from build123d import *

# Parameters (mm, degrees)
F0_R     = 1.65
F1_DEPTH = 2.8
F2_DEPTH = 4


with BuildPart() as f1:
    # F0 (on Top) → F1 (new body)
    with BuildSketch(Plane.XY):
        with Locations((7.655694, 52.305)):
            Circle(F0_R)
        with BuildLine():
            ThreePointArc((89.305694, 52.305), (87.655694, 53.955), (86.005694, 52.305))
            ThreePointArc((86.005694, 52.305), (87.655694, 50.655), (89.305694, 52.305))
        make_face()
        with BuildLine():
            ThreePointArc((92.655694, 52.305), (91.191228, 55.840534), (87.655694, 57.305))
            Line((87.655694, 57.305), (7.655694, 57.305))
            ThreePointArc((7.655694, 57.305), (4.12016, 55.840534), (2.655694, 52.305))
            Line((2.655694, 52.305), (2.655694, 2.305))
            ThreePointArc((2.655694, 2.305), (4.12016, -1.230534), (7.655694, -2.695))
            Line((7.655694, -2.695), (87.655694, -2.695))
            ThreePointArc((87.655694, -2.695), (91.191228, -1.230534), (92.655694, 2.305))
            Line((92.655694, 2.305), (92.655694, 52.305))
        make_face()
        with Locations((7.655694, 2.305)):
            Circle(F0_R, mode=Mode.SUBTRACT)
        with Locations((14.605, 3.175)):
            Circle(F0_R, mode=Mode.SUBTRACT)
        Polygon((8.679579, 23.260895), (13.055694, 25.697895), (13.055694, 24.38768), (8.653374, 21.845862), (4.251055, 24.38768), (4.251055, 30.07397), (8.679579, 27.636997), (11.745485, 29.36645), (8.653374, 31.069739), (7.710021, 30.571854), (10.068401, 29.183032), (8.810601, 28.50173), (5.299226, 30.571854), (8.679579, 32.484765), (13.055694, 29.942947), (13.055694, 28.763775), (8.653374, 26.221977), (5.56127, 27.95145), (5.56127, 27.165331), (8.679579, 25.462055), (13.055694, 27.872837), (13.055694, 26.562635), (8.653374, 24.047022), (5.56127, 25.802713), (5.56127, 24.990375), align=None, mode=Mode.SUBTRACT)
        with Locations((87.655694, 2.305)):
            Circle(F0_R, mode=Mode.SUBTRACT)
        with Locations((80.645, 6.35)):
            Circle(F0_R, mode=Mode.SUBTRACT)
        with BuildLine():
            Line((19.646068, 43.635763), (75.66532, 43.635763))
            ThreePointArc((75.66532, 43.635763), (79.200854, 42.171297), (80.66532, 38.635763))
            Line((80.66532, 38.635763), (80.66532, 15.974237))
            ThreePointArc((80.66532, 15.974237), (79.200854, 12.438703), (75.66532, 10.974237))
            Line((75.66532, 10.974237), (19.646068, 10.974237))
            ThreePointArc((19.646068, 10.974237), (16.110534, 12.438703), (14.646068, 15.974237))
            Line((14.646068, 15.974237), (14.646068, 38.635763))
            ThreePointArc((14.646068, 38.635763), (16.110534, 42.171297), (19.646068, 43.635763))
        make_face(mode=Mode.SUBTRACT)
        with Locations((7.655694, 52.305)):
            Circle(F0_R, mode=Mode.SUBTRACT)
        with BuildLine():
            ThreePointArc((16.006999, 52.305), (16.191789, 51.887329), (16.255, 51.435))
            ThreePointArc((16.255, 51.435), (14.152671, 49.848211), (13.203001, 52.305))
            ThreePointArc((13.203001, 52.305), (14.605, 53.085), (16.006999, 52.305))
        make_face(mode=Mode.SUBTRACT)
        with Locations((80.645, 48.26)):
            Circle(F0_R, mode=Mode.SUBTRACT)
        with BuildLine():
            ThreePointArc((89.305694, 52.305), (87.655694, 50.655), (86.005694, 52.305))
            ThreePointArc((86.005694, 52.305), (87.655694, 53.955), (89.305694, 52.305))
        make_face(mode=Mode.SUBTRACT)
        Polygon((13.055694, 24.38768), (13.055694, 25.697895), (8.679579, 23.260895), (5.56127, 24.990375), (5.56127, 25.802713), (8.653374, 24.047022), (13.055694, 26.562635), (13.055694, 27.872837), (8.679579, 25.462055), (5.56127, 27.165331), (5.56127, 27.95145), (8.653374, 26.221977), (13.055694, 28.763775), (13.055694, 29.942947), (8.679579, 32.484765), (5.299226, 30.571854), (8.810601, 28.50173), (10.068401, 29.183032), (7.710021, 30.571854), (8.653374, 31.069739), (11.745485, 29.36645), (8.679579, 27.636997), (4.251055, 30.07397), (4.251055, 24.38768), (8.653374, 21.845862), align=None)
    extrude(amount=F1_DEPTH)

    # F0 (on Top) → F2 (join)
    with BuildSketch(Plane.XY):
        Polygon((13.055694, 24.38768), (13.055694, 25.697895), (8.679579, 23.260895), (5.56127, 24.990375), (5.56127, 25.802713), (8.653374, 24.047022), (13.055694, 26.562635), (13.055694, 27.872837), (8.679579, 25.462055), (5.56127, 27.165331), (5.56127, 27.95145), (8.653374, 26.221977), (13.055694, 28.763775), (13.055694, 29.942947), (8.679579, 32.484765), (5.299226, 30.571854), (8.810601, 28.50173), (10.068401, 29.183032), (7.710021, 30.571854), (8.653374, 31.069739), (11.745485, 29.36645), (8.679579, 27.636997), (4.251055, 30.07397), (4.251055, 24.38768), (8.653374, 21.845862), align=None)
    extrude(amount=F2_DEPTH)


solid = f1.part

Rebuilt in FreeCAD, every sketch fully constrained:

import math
import FreeCAD as App
import Part
import Sketcher
Q = App.Units.Quantity


def add_polygon(sketch, points):
    """Adds a closed chain of lines whose ends are joined by coincident constraints."""
    first, n = sketch.GeometryCount, len(points)
    for a, b in zip(points, points[1:] + points[:1]):
        sketch.addGeometry(Part.LineSegment(App.Vector(*a, 0), App.Vector(*b, 0)), False)
    for i in range(n):
        sketch.addConstraint(Sketcher.Constraint("Coincident", first + i, 2, first + (i + 1) % n, 1))

doc = App.newDocument("Part")
body = doc.addObject("PartDesign::Body", "Body")

# Sketch on XY plane
sketch1 = body.newObject("Sketcher::SketchObject", "Sketch")
sketch1.AttachmentSupport = (doc.getObject("XY_Plane"), [""])
sketch1.MapMode = "FlatFace"
sketch1.addGeometry(Part.ArcOfCircle(Part.Circle(App.Vector(87.7, 52.3, 0), App.Vector(0, 0, 1), 5), math.radians(0), math.radians(90)), False)
sketch1.addGeometry(Part.LineSegment(App.Vector(87.7, 57.3, 0), App.Vector(7.7, 57.3, 0)), False)
sketch1.addGeometry(Part.ArcOfCircle(Part.Circle(App.Vector(7.7, 52.3, 0), App.Vector(0, 0, 1), 5), math.radians(90), math.radians(180)), False)
sketch1.addGeometry(Part.LineSegment(App.Vector(2.7, 52.3, 0), App.Vector(2.7, 2.3, 0)), False)
sketch1.addGeometry(Part.ArcOfCircle(Part.Circle(App.Vector(7.7, 2.3, 0), App.Vector(0, 0, 1), 5), math.radians(180), math.radians(270)), False)
sketch1.addGeometry(Part.LineSegment(App.Vector(7.7, -2.7, 0), App.Vector(87.7, -2.7, 0)), False)
sketch1.addGeometry(Part.ArcOfCircle(Part.Circle(App.Vector(87.7, 2.3, 0), App.Vector(0, 0, 1), 5), math.radians(-90), math.radians(0)), False)
sketch1.addGeometry(Part.LineSegment(App.Vector(92.7, 2.3, 0), App.Vector(92.7, 52.3, 0)), False)
sketch1.addGeometry(Part.Circle(App.Vector(7.7, 2.3, 0), App.Vector(0, 0, 1), 1.6), False)
sketch1.addGeometry(Part.Circle(App.Vector(14.6, 3.2, 0), App.Vector(0, 0, 1), 1.6), False)
sketch1.addGeometry(Part.Circle(App.Vector(87.7, 2.3, 0), App.Vector(0, 0, 1), 1.6), False)
sketch1.addGeometry(Part.Circle(App.Vector(80.6, 6.3, 0), App.Vector(0, 0, 1), 1.6), False)
sketch1.addGeometry(Part.Circle(App.Vector(7.7, 52.3, 0), App.Vector(0, 0, 1), 1.6), False)
sketch1.addGeometry(Part.ArcOfCircle(Part.Circle(App.Vector(14.6, 51.4, 0), App.Vector(0, 0, 1), 1.7), math.radians(32), math.radians(148)), False)
sketch1.addGeometry(Part.ArcOfCircle(Part.Circle(App.Vector(14.6, 51.4, 0), App.Vector(0, 0, 1), 1.6), math.radians(0), math.radians(32)), False)
sketch1.addGeometry(Part.ArcOfCircle(Part.Circle(App.Vector(14.6, 51.4, 0), App.Vector(0, 0, 1), 1.7), math.radians(148), math.radians(360)), False)
sketch1.addGeometry(Part.ArcOfCircle(Part.Circle(App.Vector(19.6, 38.6, 0), App.Vector(0, 0, 1), 5), math.radians(90), math.radians(180)), False)
sketch1.addGeometry(Part.LineSegment(App.Vector(19.6, 43.6, 0), App.Vector(75.7, 43.6, 0)), False)
sketch1.addGeometry(Part.ArcOfCircle(Part.Circle(App.Vector(75.7, 38.6, 0), App.Vector(0, 0, 1), 5), math.radians(0), math.radians(90)), False)
sketch1.addGeometry(Part.LineSegment(App.Vector(80.7, 38.6, 0), App.Vector(80.7, 16, 0)), False)
sketch1.addGeometry(Part.ArcOfCircle(Part.Circle(App.Vector(75.7, 16, 0), App.Vector(0, 0, 1), 5), math.radians(-90), math.radians(0)), False)
sketch1.addGeometry(Part.LineSegment(App.Vector(75.7, 11, 0), App.Vector(19.6, 11, 0)), False)
sketch1.addGeometry(Part.ArcOfCircle(Part.Circle(App.Vector(19.6, 16, 0), App.Vector(0, 0, 1), 5), math.radians(180), math.radians(270)), False)
sketch1.addGeometry(Part.LineSegment(App.Vector(14.6, 16, 0), App.Vector(14.6, 38.6, 0)), False)
sketch1.addGeometry(Part.Circle(App.Vector(80.6, 48.3, 0), App.Vector(0, 0, 1), 1.6), False)
sketch1.addGeometry(Part.Circle(App.Vector(87.7, 52.3, 0), App.Vector(0, 0, 1), 1.6), False)
sketch1.addConstraint(Sketcher.Constraint("Tangent", 0, 2, 1, 1))
sketch1.addConstraint(Sketcher.Constraint("Tangent", 1, 2, 2, 1))
sketch1.addConstraint(Sketcher.Constraint("Tangent", 2, 2, 3, 1))
sketch1.addConstraint(Sketcher.Constraint("Tangent", 3, 2, 4, 1))
sketch1.addConstraint(Sketcher.Constraint("Tangent", 4, 2, 5, 1))
sketch1.addConstraint(Sketcher.Constraint("Tangent", 5, 2, 6, 1))
sketch1.addConstraint(Sketcher.Constraint("Tangent", 6, 2, 7, 1))
sketch1.addConstraint(Sketcher.Constraint("Tangent", 7, 2, 0, 1))
sketch1.addConstraint(Sketcher.Constraint("Tangent", 13, 1, 14, 2))
sketch1.addConstraint(Sketcher.Constraint("Tangent", 14, 1, 15, 2))
sketch1.addConstraint(Sketcher.Constraint("Tangent", 15, 1, 13, 2))
sketch1.addConstraint(Sketcher.Constraint("Tangent", 16, 1, 17, 1))
sketch1.addConstraint(Sketcher.Constraint("Tangent", 17, 2, 18, 2))
sketch1.addConstraint(Sketcher.Constraint("Tangent", 18, 1, 19, 1))
sketch1.addConstraint(Sketcher.Constraint("Tangent", 19, 2, 20, 2))
sketch1.addConstraint(Sketcher.Constraint("Tangent", 20, 1, 21, 1))
sketch1.addConstraint(Sketcher.Constraint("Tangent", 21, 2, 22, 2))
sketch1.addConstraint(Sketcher.Constraint("Tangent", 22, 1, 23, 1))
sketch1.addConstraint(Sketcher.Constraint("Tangent", 23, 2, 16, 2))
sketch1.addConstraint(Sketcher.Constraint("Horizontal", 1))
sketch1.addConstraint(Sketcher.Constraint("Vertical", 3))
sketch1.addConstraint(Sketcher.Constraint("Horizontal", 5))
sketch1.addConstraint(Sketcher.Constraint("Vertical", 7))
sketch1.addConstraint(Sketcher.Constraint("Horizontal", 17))
sketch1.addConstraint(Sketcher.Constraint("Vertical", 19))
sketch1.addConstraint(Sketcher.Constraint("Horizontal", 21))
sketch1.addConstraint(Sketcher.Constraint("Vertical", 23))
sketch1.addConstraint(Sketcher.Constraint("Coincident", 8, 3, 4, 3))
sketch1.addConstraint(Sketcher.Constraint("Coincident", 10, 3, 6, 3))
sketch1.addConstraint(Sketcher.Constraint("Coincident", 12, 3, 2, 3))
sketch1.addConstraint(Sketcher.Constraint("Coincident", 25, 3, 0, 3))
sketch1.addConstraint(Sketcher.Constraint("Equal", 0, 2))
sketch1.addConstraint(Sketcher.Constraint("Equal", 2, 4))
sketch1.addConstraint(Sketcher.Constraint("Equal", 4, 6))
sketch1.addConstraint(Sketcher.Constraint("Equal", 8, 9))
sketch1.addConstraint(Sketcher.Constraint("Equal", 9, 10))
sketch1.addConstraint(Sketcher.Constraint("Equal", 10, 11))
sketch1.addConstraint(Sketcher.Constraint("Equal", 11, 12))
sketch1.addConstraint(Sketcher.Constraint("Equal", 12, 13))
sketch1.addConstraint(Sketcher.Constraint("Equal", 6, 16))
sketch1.addConstraint(Sketcher.Constraint("Equal", 16, 18))
sketch1.addConstraint(Sketcher.Constraint("Equal", 18, 20))
sketch1.addConstraint(Sketcher.Constraint("Equal", 20, 22))
sketch1.addConstraint(Sketcher.Constraint("Equal", 15, 24))
sketch1.addConstraint(Sketcher.Constraint("Equal", 24, 25))
sketch1.addConstraint(Sketcher.Constraint("Horizontal", 7, 2, 13, 1))
sketch1.addConstraint(Sketcher.Constraint("Horizontal", 15, 3, 14, 1))
sketch1.addConstraint(Sketcher.Constraint("Horizontal", 13, 1, 15, 1))
sketch1.addConstraint(Sketcher.Constraint("Vertical", 9, 3, 13, 3))
sketch1.addConstraint(Sketcher.Constraint("Vertical", 11, 3, 24, 3))
sketch1.addConstraint(Sketcher.Constraint("Radius", 0, Q("5 mm")))
sketch1.addConstraint(Sketcher.Constraint("Diameter", 8, Q("3.3 mm")))
sketch1.addConstraint(Sketcher.Constraint("DistanceX", 1, 2, 1, 1, Q("80 mm")))
sketch1.addConstraint(Sketcher.Constraint("DistanceY", 3, 2, 3, 1, Q("50 mm")))
sketch1.addConstraint(Sketcher.Constraint("DistanceY", -1, 1, 11, 3, Q("6.35 mm")))
sketch1.addConstraint(Sketcher.Constraint("DistanceY", -1, 1, 24, 3, Q("48.26 mm")))
sketch1.addConstraint(Sketcher.Constraint("DistanceY", 8, 3, 9, 3, Q("0.87 mm")))
sketch1.addConstraint(Sketcher.Constraint("DistanceX", 9, 3, 11, 3, Q("66.04 mm")))
sketch1.addConstraint(Sketcher.Constraint("DistanceY", 13, 3, 12, 3, Q("0.870001 mm")))
sketch1.addConstraint(Sketcher.Constraint("DistanceY", -1, 1, 0, 3, Q("52.305 mm")))
sketch1.addConstraint(Sketcher.Constraint("DistanceX", -1, 1, 9, 3, Q("14.605 mm")))
sketch1.addConstraint(Sketcher.Constraint("DistanceX", 17, 1, 17, 2, Q("56.019252 mm")))
sketch1.addConstraint(Sketcher.Constraint("DistanceY", 19, 2, 19, 1, Q("22.661526 mm")))
sketch1.addConstraint(Sketcher.Constraint("DistanceX", -1, 1, 18, 3, Q("75.66532 mm")))
sketch1.addConstraint(Sketcher.Constraint("DistanceX", 2, 3, 14, 3, Q("6.949308 mm")))
sketch1.addConstraint(Sketcher.Constraint("DistanceY", 16, 1, 14, 3, Q("7.799238 mm")))
pad1 = body.newObject("PartDesign::Pad", "Pad")
pad1.Profile = sketch1
pad1.Length = 2.8

# Sketch on XY plane
sketch2 = body.newObject("Sketcher::SketchObject", "Sketch001")
sketch2.AttachmentSupport = (doc.getObject("XY_Plane"), [""])
sketch2.MapMode = "FlatFace"
add_polygon(sketch2, [(13.1, 24.4), (13.1, 25.7), (8.7, 23.3), (5.6, 25), (5.6, 25.8), (8.7, 24), (13.1, 26.6), (13.1, 27.9), (8.7, 25.5), (5.6, 27.2), (5.6, 28), (8.7, 26.2), (13.1, 28.8), (13.1, 29.9), (8.7, 32.5), (5.3, 30.6), (8.8, 28.5), (10.1, 29.2), (7.7, 30.6), (8.7, 31.1), (11.7, 29.4), (8.7, 27.6), (4.3, 30.1), (4.3, 24.4), (8.7, 21.8)])  # lines 0-24
sketch2.addConstraint(Sketcher.Constraint("Vertical", 0))
sketch2.addConstraint(Sketcher.Constraint("Vertical", 3))
sketch2.addConstraint(Sketcher.Constraint("Vertical", 6))
sketch2.addConstraint(Sketcher.Constraint("Vertical", 9))
sketch2.addConstraint(Sketcher.Constraint("Vertical", 12))
sketch2.addConstraint(Sketcher.Constraint("Vertical", 22))
sketch2.addConstraint(Sketcher.Constraint("Horizontal", 14, 2, 17, 2))
sketch2.addConstraint(Sketcher.Constraint("Horizontal", 22, 2, 24, 2))
sketch2.addConstraint(Sketcher.Constraint("Vertical", 0, 2, 5, 2))
sketch2.addConstraint(Sketcher.Constraint("Vertical", 1, 2, 7, 2))
sketch2.addConstraint(Sketcher.Constraint("Vertical", 3, 2, 8, 2))
sketch2.addConstraint(Sketcher.Constraint("Vertical", 4, 2, 10, 2))
sketch2.addConstraint(Sketcher.Constraint("Vertical", 6, 2, 11, 2))
sketch2.addConstraint(Sketcher.Constraint("Vertical", 7, 2, 13, 2))
sketch2.addConstraint(Sketcher.Constraint("Vertical", 10, 2, 18, 2))
sketch2.addConstraint(Sketcher.Constraint("Vertical", 13, 2, 20, 2))
sketch2.addConstraint(Sketcher.Constraint("Vertical", 18, 2, 23, 2))
sketch2.addConstraint(Sketcher.Constraint("Equal", 23, 24))
sketch2.addConstraint(Sketcher.Constraint("DistanceY", 1, 2, 0, 2, Q("2.437 mm")))
sketch2.addConstraint(Sketcher.Constraint("DistanceY", 3, 1, 3, 2, Q("0.812338 mm")))
sketch2.addConstraint(Sketcher.Constraint("DistanceY", 9, 1, 9, 2, Q("0.786119 mm")))
sketch2.addConstraint(Sketcher.Constraint("DistanceY", 22, 2, 22, 1, Q("5.68629 mm")))
sketch2.addConstraint(Sketcher.Constraint("DistanceX", -1, 1, 15, 2, Q("8.810601 mm")))
sketch2.addConstraint(Sketcher.Constraint("DistanceX", -1, 1, 16, 2, Q("10.068401 mm")))
sketch2.addConstraint(Sketcher.Constraint("DistanceY", 10, 2, 11, 2, Q("2.541798 mm")))
sketch2.addConstraint(Sketcher.Constraint("DistanceY", 8, 2, 15, 2, Q("1.336399 mm")))
sketch2.addConstraint(Sketcher.Constraint("Distance", 4, Q("3.555778 mm")))
sketch2.addConstraint(Sketcher.Constraint("Distance", 11, Q("5.08342 mm")))
sketch2.addConstraint(Sketcher.Constraint("Distance", 14, Q("3.884072 mm")))
sketch2.addConstraint(Sketcher.Constraint("Distance", 15, Q("4.076171 mm")))
sketch2.addConstraint(Sketcher.Constraint("Distance", 17, Q("2.736929 mm")))
sketch2.addConstraint(Sketcher.Constraint("Distance", 18, Q("1.066679 mm")))
sketch2.addConstraint(Sketcher.Constraint("Distance", 23, Q("5.083429 mm")))
sketch2.addConstraint(Sketcher.Constraint("DistanceY", 0, 1, 0, 2, Q("1.310215 mm")))
sketch2.addConstraint(Sketcher.Constraint("DistanceY", 6, 1, 6, 2, Q("1.310202 mm")))
sketch2.addConstraint(Sketcher.Constraint("DistanceY", 12, 1, 12, 2, Q("1.179172 mm")))
sketch2.addConstraint(Sketcher.Constraint("DistanceX", -1, 1, 1, 2, Q("8.679579 mm")))
sketch2.addConstraint(Sketcher.Constraint("DistanceX", -1, 1, 2, 2, Q("5.56127 mm")))
sketch2.addConstraint(Sketcher.Constraint("DistanceY", -1, 1, 4, 2, Q("24.047022 mm")))
sketch2.addConstraint(Sketcher.Constraint("DistanceY", -1, 1, 8, 2, Q("27.165331 mm")))
sketch2.addConstraint(Sketcher.Constraint("DistanceX", -1, 1, 17, 2, Q("7.710021 mm")))
sketch2.addConstraint(Sketcher.Constraint("DistanceY", -1, 1, 18, 2, Q("31.069739 mm")))
sketch2.addConstraint(Sketcher.Constraint("DistanceY", -1, 1, 19, 2, Q("29.36645 mm")))
sketch2.addConstraint(Sketcher.Constraint("DistanceY", -1, 1, 21, 2, Q("30.07397 mm")))
sketch2.addConstraint(Sketcher.Constraint("DistanceY", 1, 2, 2, 2, Q("1.72948 mm")))
sketch2.addConstraint(Sketcher.Constraint("DistanceY", 0, 2, 5, 2, Q("0.86474 mm")))
sketch2.addConstraint(Sketcher.Constraint("DistanceY", 1, 2, 7, 2, Q("2.20116 mm")))
sketch2.addConstraint(Sketcher.Constraint("DistanceY", 7, 2, 10, 2, Q("0.759922 mm")))
sketch2.addConstraint(Sketcher.Constraint("DistanceX", 19, 2, 12, 2, Q("1.310209 mm")))
sketch2.addConstraint(Sketcher.Constraint("DistanceY", 10, 2, 20, 2, Q("1.41502 mm")))
pad2 = body.newObject("PartDesign::Pad", "Pad001")
pad2.Profile = sketch2
pad2.Length = 4

doc.recompute()
